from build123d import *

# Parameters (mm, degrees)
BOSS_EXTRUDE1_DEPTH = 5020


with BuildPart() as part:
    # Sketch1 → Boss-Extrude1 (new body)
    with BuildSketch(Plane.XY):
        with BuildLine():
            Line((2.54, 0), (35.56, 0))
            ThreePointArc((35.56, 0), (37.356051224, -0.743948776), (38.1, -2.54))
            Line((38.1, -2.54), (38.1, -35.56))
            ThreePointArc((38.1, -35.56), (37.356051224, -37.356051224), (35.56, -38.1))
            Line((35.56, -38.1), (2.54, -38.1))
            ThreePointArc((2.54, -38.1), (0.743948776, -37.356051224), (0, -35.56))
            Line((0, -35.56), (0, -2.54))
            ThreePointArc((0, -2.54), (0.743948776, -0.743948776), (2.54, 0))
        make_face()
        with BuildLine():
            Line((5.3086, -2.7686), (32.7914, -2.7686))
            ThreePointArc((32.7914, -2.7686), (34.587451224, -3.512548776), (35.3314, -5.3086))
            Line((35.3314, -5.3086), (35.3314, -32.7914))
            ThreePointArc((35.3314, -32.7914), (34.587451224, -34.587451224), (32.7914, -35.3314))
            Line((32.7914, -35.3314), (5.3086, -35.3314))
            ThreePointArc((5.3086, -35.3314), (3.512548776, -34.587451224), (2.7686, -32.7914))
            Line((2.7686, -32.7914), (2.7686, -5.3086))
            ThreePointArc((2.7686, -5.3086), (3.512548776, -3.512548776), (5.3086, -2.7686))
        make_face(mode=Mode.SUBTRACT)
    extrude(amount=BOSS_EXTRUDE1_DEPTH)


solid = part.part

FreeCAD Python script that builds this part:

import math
import FreeCAD as App
import Part
import Sketcher

V = App.Vector
Q = App.Units.Quantity

doc = App.newDocument("Part")
body = doc.addObject("PartDesign::Body", "Body")

sketch1 = doc.addObject("Sketcher::SketchObject", "Sketch")
body.addObject(sketch1)
sketch1.AttachmentSupport = (doc.XY_Plane, [""])
sketch1.MapMode = "FlatFace"
sketch1.addGeometry(Part.LineSegment(V(35.6, 0, 0), V(2.5, 0, 0)), False)
sketch1.addGeometry(Part.ArcOfCircle(Part.Circle(V(2.5, -2.5, 0), V(0, 0, 1), 2.5), math.radians(90), math.radians(180)), False)
sketch1.addGeometry(Part.LineSegment(V(0, -2.5, 0), V(0, -35.6, 0)), False)
sketch1.addGeometry(Part.ArcOfCircle(Part.Circle(V(2.5, -35.6, 0), V(0, 0, 1), 2.5), math.radians(-180), math.radians(-90)), False)
sketch1.addGeometry(Part.LineSegment(V(2.5, -38.1, 0), V(35.6, -38.1, 0)), False)
sketch1.addGeometry(Part.ArcOfCircle(Part.Circle(V(35.6, -35.6, 0), V(0, 0, 1), 2.5), math.radians(-90), math.radians(0)), False)
sketch1.addGeometry(Part.LineSegment(V(38.1, -35.6, 0), V(38.1, -2.5, 0)), False)
sketch1.addGeometry(Part.ArcOfCircle(Part.Circle(V(35.6, -2.5, 0), V(0, 0, 1), 2.5), math.radians(0), math.radians(90)), False)
sketch1.addGeometry(Part.LineSegment(V(5.3, -2.8, 0), V(32.8, -2.8, 0)), False)
sketch1.addGeometry(Part.ArcOfCircle(Part.Circle(V(32.8, -5.3, 0), V(0, 0, 1), 2.5), math.radians(0), math.radians(90)), False)
sketch1.addGeometry(Part.LineSegment(V(35.3, -5.3, 0), V(35.3, -32.8, 0)), False)
sketch1.addGeometry(Part.ArcOfCircle(Part.Circle(V(32.8, -32.8, 0), V(0, 0, 1), 2.5), math.radians(-90), math.radians(0)), False)
sketch1.addGeometry(Part.LineSegment(V(32.8, -35.3, 0), V(5.3, -35.3, 0)), False)
sketch1.addGeometry(Part.ArcOfCircle(Part.Circle(V(5.3, -32.8, 0), V(0, 0, 1), 2.5), math.radians(-180), math.radians(-90)), False)
sketch1.addGeometry(Part.LineSegment(V(2.8, -32.8, 0), V(2.8, -5.3, 0)), False)
sketch1.addGeometry(Part.ArcOfCircle(Part.Circle(V(5.3, -5.3, 0), V(0, 0, 1), 2.5), math.radians(90), math.radians(180)), False)
sketch1.addConstraint(Sketcher.Constraint("Tangent", 0, 2, 1, 1))
sketch1.addConstraint(Sketcher.Constraint("Tangent", 1, 2, 2, 1))
sketch1.addConstraint(Sketcher.Constraint("Tangent", 2, 2, 3, 1))
sketch1.addConstraint(Sketcher.Constraint("Tangent", 3, 2, 4, 1))
sketch1.addConstraint(Sketcher.Constraint("Tangent", 4, 2, 5, 1))
sketch1.addConstraint(Sketcher.Constraint("Tangent", 5, 2, 6, 1))
sketch1.addConstraint(Sketcher.Constraint("Tangent", 6, 2, 7, 1))
sketch1.addConstraint(Sketcher.Constraint("Tangent", 7, 2, 0, 1))
sketch1.addConstraint(Sketcher.Constraint("Tangent", 8, 2, 9, 2))
sketch1.addConstraint(Sketcher.Constraint("Tangent", 9, 1, 10, 1))
sketch1.addConstraint(Sketcher.Constraint("Tangent", 10, 2, 11, 2))
sketch1.addConstraint(Sketcher.Constraint("Tangent", 11, 1, 12, 1))
sketch1.addConstraint(Sketcher.Constraint("Tangent", 12, 2, 13, 2))
sketch1.addConstraint(Sketcher.Constraint("Tangent", 13, 1, 14, 1))
sketch1.addConstraint(Sketcher.Constraint("Tangent", 14, 2, 15, 2))
sketch1.addConstraint(Sketcher.Constraint("Tangent", 15, 1, 8, 1))
sketch1.addConstraint(Sketcher.Constraint("Horizontal", 0))
sketch1.addConstraint(Sketcher.Constraint("Vertical", 2))
sketch1.addConstraint(Sketcher.Constraint("Horizontal", 4))
sketch1.addConstraint(Sketcher.Constraint("Vertical", 6))
sketch1.addConstraint(Sketcher.Constraint("Horizontal", 8))
sketch1.addConstraint(Sketcher.Constraint("Vertical", 10))
sketch1.addConstraint(Sketcher.Constraint("Horizontal", 12))
sketch1.addConstraint(Sketcher.Constraint("Vertical", 14))
sketch1.addConstraint(Sketcher.Constraint("Equal", 1, 3))
sketch1.addConstraint(Sketcher.Constraint("Equal", 3, 5))
sketch1.addConstraint(Sketcher.Constraint("Equal", 5, 7))
sketch1.addConstraint(Sketcher.Constraint("Equal", 7, 9))
sketch1.addConstraint(Sketcher.Constraint("Equal", 9, 11))
sketch1.addConstraint(Sketcher.Constraint("Equal", 11, 13))
sketch1.addConstraint(Sketcher.Constraint("Equal", 13, 15))
sketch1.addConstraint(Sketcher.Constraint("PointOnObject", 0, 2, -1))
sketch1.addConstraint(Sketcher.Constraint("PointOnObject", 1, 2, -2))
sketch1.addConstraint(Sketcher.Constraint("Equal", 4, 2))
sketch1.addConstraint(Sketcher.Constraint("Equal", 12, 10))
sketch1.addConstraint(Sketcher.Constraint("Radius", 1, Q("0.1 in")))
sketch1.addConstraint(Sketcher.Constraint("DistanceX", 0, 2, 0, 1, Q("1.3 in")))
sketch1.addConstraint(Sketcher.Constraint("DistanceX", 8, 1, 8, 2, Q("1.082 in")))
sketch1.addConstraint(Sketcher.Constraint("DistanceX", -1, 1, 9, 3, Q("1.291 in")))
sketch1.addConstraint(Sketcher.Constraint("DistanceY", 9, 3, -1, 1, Q("0.209 in")))
pad1 = doc.addObject("PartDesign::Pad", "Pad")
body.addObject(pad1)
pad1.Profile = sketch1
pad1.Length = 5020

doc.recompute()
